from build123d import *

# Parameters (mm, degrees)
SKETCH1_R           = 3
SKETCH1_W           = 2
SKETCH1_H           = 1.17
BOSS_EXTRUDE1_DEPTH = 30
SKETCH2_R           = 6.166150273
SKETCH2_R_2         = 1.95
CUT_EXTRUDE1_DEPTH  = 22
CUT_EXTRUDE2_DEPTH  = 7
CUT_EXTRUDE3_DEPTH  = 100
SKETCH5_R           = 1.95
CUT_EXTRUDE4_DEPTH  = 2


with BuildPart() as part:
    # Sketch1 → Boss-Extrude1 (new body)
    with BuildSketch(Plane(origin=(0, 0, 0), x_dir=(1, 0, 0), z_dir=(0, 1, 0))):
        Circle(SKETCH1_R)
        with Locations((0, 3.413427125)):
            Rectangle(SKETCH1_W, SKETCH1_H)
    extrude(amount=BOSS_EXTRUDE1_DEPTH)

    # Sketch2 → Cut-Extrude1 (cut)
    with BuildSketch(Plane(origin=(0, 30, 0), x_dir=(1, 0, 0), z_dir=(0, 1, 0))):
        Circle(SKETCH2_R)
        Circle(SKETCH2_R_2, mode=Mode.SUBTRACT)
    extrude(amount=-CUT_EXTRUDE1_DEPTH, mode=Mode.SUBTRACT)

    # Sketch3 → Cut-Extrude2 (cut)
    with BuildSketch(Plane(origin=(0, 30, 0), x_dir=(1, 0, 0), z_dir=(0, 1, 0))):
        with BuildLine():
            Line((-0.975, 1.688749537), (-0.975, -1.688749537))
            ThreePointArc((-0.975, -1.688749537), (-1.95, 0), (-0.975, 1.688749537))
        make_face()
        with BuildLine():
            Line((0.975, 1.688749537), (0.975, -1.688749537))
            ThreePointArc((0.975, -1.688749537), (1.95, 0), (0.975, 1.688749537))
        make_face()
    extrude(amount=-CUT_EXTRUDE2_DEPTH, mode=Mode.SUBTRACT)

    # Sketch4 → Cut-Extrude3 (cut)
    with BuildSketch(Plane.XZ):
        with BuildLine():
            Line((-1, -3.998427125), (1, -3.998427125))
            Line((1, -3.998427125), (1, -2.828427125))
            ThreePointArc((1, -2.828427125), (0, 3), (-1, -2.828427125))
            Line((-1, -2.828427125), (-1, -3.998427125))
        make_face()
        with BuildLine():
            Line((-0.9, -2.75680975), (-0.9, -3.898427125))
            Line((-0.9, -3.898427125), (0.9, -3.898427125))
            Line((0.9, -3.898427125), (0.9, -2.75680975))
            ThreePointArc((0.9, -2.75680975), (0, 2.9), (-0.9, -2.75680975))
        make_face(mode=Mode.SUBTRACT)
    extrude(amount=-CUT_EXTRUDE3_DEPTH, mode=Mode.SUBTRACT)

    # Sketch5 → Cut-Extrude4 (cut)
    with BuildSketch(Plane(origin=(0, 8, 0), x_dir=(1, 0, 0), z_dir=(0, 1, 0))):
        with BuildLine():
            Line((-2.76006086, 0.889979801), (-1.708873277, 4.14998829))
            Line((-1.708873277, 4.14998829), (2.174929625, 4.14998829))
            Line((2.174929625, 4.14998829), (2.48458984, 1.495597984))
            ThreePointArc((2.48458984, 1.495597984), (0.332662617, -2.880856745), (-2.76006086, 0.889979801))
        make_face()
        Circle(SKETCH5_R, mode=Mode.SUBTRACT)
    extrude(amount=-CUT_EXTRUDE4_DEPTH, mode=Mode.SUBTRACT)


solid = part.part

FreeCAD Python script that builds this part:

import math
import FreeCAD as App
import Part
import Sketcher
from FreeCAD import Vector
Q = App.Units.Quantity

doc = App.newDocument("Part")
params = doc.addObject("Spreadsheet::Sheet", "Params")
for row, (alias, value) in enumerate([
    ("sketch1_radius", "3 mm"),
    ("sketch1_width", "2 mm"),
    ("sketch1_height", "1.17 mm"),
    ("pad1_length", "30 mm"),
    ("sketch2_diameter", "3.9 mm"),
    ("pocket1_length", "22 mm"),
    ("sketch3_radius", "1.95 mm"),
    ("pocket2_length", "7 mm"),
    ("sketch4_radius", "3 mm"),
    ("sketch4_radius2", "2.9 mm"),
    ("sketch4_width", "2 mm"),
    ("sketch4_width2", "1.8 mm"),
    ("sketch4_height", "1.17 mm"),
    ("pocket3_length", "100 mm"),
    ("sketch5_diameter", "3.9 mm"),
    ("sketch5_radius", "2.9 mm"),
    ("pocket4_length", "2 mm"),
], start=1):
    params.set(f"A{row}", alias)
    params.set(f"B{row}", "=" + value)
    params.setAlias(f"B{row}", alias)

body = doc.addObject("PartDesign::Body", "Body")

# Sketch on XZ plane
sketch1 = doc.addObject("Sketcher::SketchObject", "Sketch")
body.addObject(sketch1)
sketch1.AttachmentSupport = (doc.XZ_Plane, [""])
sketch1.MapMode = "FlatFace"
sketch1.addGeometry([
    Part.ArcOfCircle(Part.Circle(Vector(0, 0, 0), Vector(0, 0, 1), 3), math.radians(-70.528779), math.radians(250.528779)),
    Part.LineSegment(Vector(1, -2.828427, 0), Vector(1, -3.998427, 0)),
    Part.LineSegment(Vector(1, -3.998427, 0), Vector(-1, -3.998427, 0)),
    Part.LineSegment(Vector(-1, -3.998427, 0), Vector(-1, -2.828427, 0)),
], False)
sketch1.addConstraint([
    Sketcher.Constraint("Coincident", 0, 1, 1, 1),
    Sketcher.Constraint("Coincident", 1, 2, 2, 1),
    Sketcher.Constraint("Coincident", 2, 2, 3, 1),
    Sketcher.Constraint("Coincident", 3, 2, 0, 2),
    Sketcher.Constraint("Vertical", 1),
    Sketcher.Constraint("Horizontal", 2),
    Sketcher.Constraint("Vertical", 3),
    Sketcher.Constraint("Coincident", 0, 3, -1, 1),
    Sketcher.Constraint("Horizontal", 0, 1, 3, 2),
    Sketcher.Constraint("Radius", 0, Q("3 mm")),
    Sketcher.Constraint("DistanceX", 2, 2, 2, 1, Q("2 mm")),
    Sketcher.Constraint("DistanceY", 1, 2, 1, 1, Q("1.17 mm")),
])
sketch1.setExpression("Constraints[9]", "Params.sketch1_radius")
sketch1.setExpression("Constraints[10]", "Params.sketch1_width")
sketch1.setExpression("Constraints[11]", "Params.sketch1_height")
pad1 = doc.addObject("PartDesign::Pad", "Pad")
body.addObject(pad1)
pad1.Profile = sketch1
pad1.setExpression("Length", "Params.pad1_length")
pad1.Reversed = True

# Sketch on XZ plane
sketch2 = doc.addObject("Sketcher::SketchObject", "Sketch001")
body.addObject(sketch2)
sketch2.AttachmentSupport = (doc.XZ_Plane, [""])
sketch2.MapMode = "FlatFace"
sketch2.AttachmentOffset = App.Placement(Vector(0, 0, -30), App.Rotation())
sketch2.addGeometry([
    Part.Circle(Vector(0, 0, 0), Vector(0, 0, 1), 6.16615),
    Part.Circle(Vector(0, 0, 0), Vector(0, 0, 1), 1.95),
], False)
sketch2.addConstraint([
    Sketcher.Constraint("Coincident", 0, 3, -1, 1),
    Sketcher.Constraint("Coincident", 1, 3, -1, 1),
    Sketcher.Constraint("Diameter", 1, Q("3.9 mm")),
    Sketcher.Constraint("Diameter", 0, Q("12.332301 mm")),
])
sketch2.setExpression("Constraints[2]", "Params.sketch2_diameter")
pocket1 = doc.addObject("PartDesign::Pocket", "Pocket")
body.addObject(pocket1)
pocket1.Profile = sketch2
pocket1.setExpression("Length", "Params.pocket1_length")
pocket1.Reversed = True

# Sketch on XZ plane
sketch3 = doc.addObject("Sketcher::SketchObject", "Sketch002")
body.addObject(sketch3)
sketch3.AttachmentSupport = (doc.XZ_Plane, [""])
sketch3.MapMode = "FlatFace"
sketch3.AttachmentOffset = App.Placement(Vector(0, 0, -30), App.Rotation())
sketch3.addGeometry([
    Part.LineSegment(Vector(-0.975, 1.68875, 0), Vector(-0.975, -1.68875, 0)),
    Part.ArcOfCircle(Part.Circle(Vector(0, 0, 0), Vector(0, 0, 1), 1.95), math.radians(120), math.radians(240)),
    Part.LineSegment(Vector(0.975, -1.68875, 0), Vector(0.975, 1.68875, 0)),
    Part.ArcOfCircle(Part.Circle(Vector(0, 0, 0), Vector(0, 0, 1), 1.95), math.radians(-60), math.radians(60)),
], False)
sketch3.addConstraint([
    Sketcher.Constraint("Coincident", 0, 1, 1, 1),
    Sketcher.Constraint("Coincident", 1, 2, 0, 2),
    Sketcher.Constraint("Coincident", 2, 1, 3, 1),
    Sketcher.Constraint("Coincident", 3, 2, 2, 2),
    Sketcher.Constraint("Vertical", 0),
    Sketcher.Constraint("Vertical", 2),
    Sketcher.Constraint("Coincident", 1, 3, -1, 1),
    Sketcher.Constraint("Coincident", 3, 3, -1, 1),
    Sketcher.Constraint("Equal", 1, 3),
    Sketcher.Constraint("Horizontal", 1, 2, 2, 1),
    Sketcher.Constraint("Radius", 1, Q("1.95 mm")),
    Sketcher.Constraint("DistanceX", 1, 2, 2, 1, Q("1.95 mm")),
])
sketch3.setExpression("Constraints[10]", "Params.sketch3_radius")
pocket2 = doc.addObject("PartDesign::Pocket", "Pocket001")
body.addObject(pocket2)
pocket2.Profile = sketch3
pocket2.setExpression("Length", "Params.pocket2_length")
pocket2.Reversed = True

# Sketch on XZ plane
sketch4 = doc.addObject("Sketcher::SketchObject", "Sketch003")
body.addObject(sketch4)
sketch4.AttachmentSupport = (doc.XZ_Plane, [""])
sketch4.MapMode = "FlatFace"
sketch4.addGeometry([
    Part.LineSegment(Vector(-1, -3.998427, 0), Vector(1, -3.998427, 0)),  # 0
    Part.LineSegment(Vector(1, -3.998427, 0), Vector(1, -2.828427, 0)),  # 1
    Part.ArcOfCircle(Part.Circle(Vector(0, 0, 0), Vector(0, 0, 1), 3), math.radians(-70.528779), math.radians(250.528779)),  # 2
    Part.LineSegment(Vector(-1, -2.828427, 0), Vector(-1, -3.998427, 0)),  # 3
    Part.LineSegment(Vector(-0.9, -3.898427, 0), Vector(-0.9, -2.75681, 0)),  # 4
    Part.ArcOfCircle(Part.Circle(Vector(0, 0, 0), Vector(0, 0, 1), 2.9), math.radians(-71.919987), math.radians(251.919987)),  # 5
    Part.LineSegment(Vector(0.9, -2.75681, 0), Vector(0.9, -3.898427, 0)),  # 6
    Part.LineSegment(Vector(0.9, -3.898427, 0), Vector(-0.9, -3.898427, 0)),  # 7
], False)
sketch4.addConstraint([
    Sketcher.Constraint("Coincident", 0, 2, 1, 1),
    Sketcher.Constraint("Coincident", 1, 2, 2, 1),
    Sketcher.Constraint("Coincident", 2, 2, 3, 1),
    Sketcher.Constraint("Coincident", 3, 2, 0, 1),
    Sketcher.Constraint("Coincident", 4, 2, 5, 2),
    Sketcher.Constraint("Coincident", 5, 1, 6, 1),
    Sketcher.Constraint("Coincident", 6, 2, 7, 1),
    Sketcher.Constraint("Coincident", 7, 2, 4, 1),
    Sketcher.Constraint("Horizontal", 0),
    Sketcher.Constraint("Vertical", 1),
    Sketcher.Constraint("Vertical", 3),
    Sketcher.Constraint("Vertical", 4),
    Sketcher.Constraint("Vertical", 6),
    Sketcher.Constraint("Horizontal", 7),
    Sketcher.Constraint("Coincident", 2, 3, -1, 1),
    Sketcher.Constraint("Coincident", 5, 3, -1, 1),
    Sketcher.Constraint("Horizontal", 1, 2, 2, 2),
    Sketcher.Constraint("Horizontal", 4, 2, 5, 1),
    Sketcher.Constraint("Radius", 2, Q("3 mm")),
    Sketcher.Constraint("Radius", 5, Q("2.9 mm")),
    Sketcher.Constraint("DistanceX", 0, 1, 0, 2, Q("2 mm")),
    Sketcher.Constraint("DistanceX", 7, 2, 7, 1, Q("1.8 mm")),
    Sketcher.Constraint("DistanceY", 1, 1, 1, 2, Q("1.17 mm")),
    Sketcher.Constraint("DistanceY", 0, 2, 6, 2, Q("0.1 mm")),
])
sketch4.setExpression("Constraints[18]", "Params.sketch4_radius")
sketch4.setExpression("Constraints[19]", "Params.sketch4_radius2")
sketch4.setExpression("Constraints[20]", "Params.sketch4_width")
sketch4.setExpression("Constraints[21]", "Params.sketch4_width2")
sketch4.setExpression("Constraints[22]", "Params.sketch4_height")
pocket3 = doc.addObject("PartDesign::Pocket", "Pocket002")
body.addObject(pocket3)
pocket3.Profile = sketch4
pocket3.setExpression("Length", "Params.pocket3_length")

# Sketch on XZ plane
sketch5 = doc.addObject("Sketcher::SketchObject", "Sketch004")
body.addObject(sketch5)
sketch5.AttachmentSupport = (doc.XZ_Plane, [""])
sketch5.MapMode = "FlatFace"
sketch5.AttachmentOffset = App.Placement(Vector(0, 0, -8), App.Rotation())
sketch5.addGeometry([
    Part.LineSegment(Vector(-1.708873, -4.149988, 0), Vector(-2.760061, -0.88998, 0)),  # 0
    Part.ArcOfCircle(Part.Circle(Vector(0, 0, 0), Vector(0, 0, 1), 2.9), math.radians(-31.045823), math.radians(197.871882)),  # 1
    Part.LineSegment(Vector(2.48459, -1.495598, 0), Vector(2.17493, -4.149988, 0)),  # 2
    Part.LineSegment(Vector(2.17493, -4.149988, 0), Vector(-1.708873, -4.149988, 0)),  # 3
    Part.Circle(Vector(0, 0, 0), Vector(0, 0, 1), 1.95),  # 4
], False)
sketch5.addConstraint([
    Sketcher.Constraint("Tangent", 0, 2, 1, 2),
    Sketcher.Constraint("Coincident", 1, 1, 2, 1),
    Sketcher.Constraint("Coincident", 2, 2, 3, 1),
    Sketcher.Constraint("Coincident", 3, 2, 0, 1),
    Sketcher.Constraint("Horizontal", 3),
    Sketcher.Constraint("Coincident", 1, 3, -1, 1),
    Sketcher.Constraint("Coincident", 4, 3, -1, 1),
    Sketcher.Constraint("Diameter", 4, Q("3.9 mm")),
    Sketcher.Constraint("Radius", 1, Q("2.9 mm")),
    Sketcher.Constraint("Distance", 2, Q("2.672392 mm")),
    Sketcher.Constraint("DistanceX", 3, 2, 3, 1, Q("3.883803 mm")),
    Sketcher.Constraint("DistanceX", 0, 2, -1, 1, Q("2.760061 mm")),
    Sketcher.Constraint("DistanceX", -1, 1, 1, 1, Q("2.48459 mm")),
])
sketch5.setExpression("Constraints[7]", "Params.sketch5_diameter")
sketch5.setExpression("Constraints[8]", "Params.sketch5_radius")
pocket4 = doc.addObject("PartDesign::Pocket", "Pocket003")
body.addObject(pocket4)
pocket4.Profile = sketch5
pocket4.setExpression("Length", "Params.pocket4_length")
pocket4.Reversed = True

doc.recompute()
